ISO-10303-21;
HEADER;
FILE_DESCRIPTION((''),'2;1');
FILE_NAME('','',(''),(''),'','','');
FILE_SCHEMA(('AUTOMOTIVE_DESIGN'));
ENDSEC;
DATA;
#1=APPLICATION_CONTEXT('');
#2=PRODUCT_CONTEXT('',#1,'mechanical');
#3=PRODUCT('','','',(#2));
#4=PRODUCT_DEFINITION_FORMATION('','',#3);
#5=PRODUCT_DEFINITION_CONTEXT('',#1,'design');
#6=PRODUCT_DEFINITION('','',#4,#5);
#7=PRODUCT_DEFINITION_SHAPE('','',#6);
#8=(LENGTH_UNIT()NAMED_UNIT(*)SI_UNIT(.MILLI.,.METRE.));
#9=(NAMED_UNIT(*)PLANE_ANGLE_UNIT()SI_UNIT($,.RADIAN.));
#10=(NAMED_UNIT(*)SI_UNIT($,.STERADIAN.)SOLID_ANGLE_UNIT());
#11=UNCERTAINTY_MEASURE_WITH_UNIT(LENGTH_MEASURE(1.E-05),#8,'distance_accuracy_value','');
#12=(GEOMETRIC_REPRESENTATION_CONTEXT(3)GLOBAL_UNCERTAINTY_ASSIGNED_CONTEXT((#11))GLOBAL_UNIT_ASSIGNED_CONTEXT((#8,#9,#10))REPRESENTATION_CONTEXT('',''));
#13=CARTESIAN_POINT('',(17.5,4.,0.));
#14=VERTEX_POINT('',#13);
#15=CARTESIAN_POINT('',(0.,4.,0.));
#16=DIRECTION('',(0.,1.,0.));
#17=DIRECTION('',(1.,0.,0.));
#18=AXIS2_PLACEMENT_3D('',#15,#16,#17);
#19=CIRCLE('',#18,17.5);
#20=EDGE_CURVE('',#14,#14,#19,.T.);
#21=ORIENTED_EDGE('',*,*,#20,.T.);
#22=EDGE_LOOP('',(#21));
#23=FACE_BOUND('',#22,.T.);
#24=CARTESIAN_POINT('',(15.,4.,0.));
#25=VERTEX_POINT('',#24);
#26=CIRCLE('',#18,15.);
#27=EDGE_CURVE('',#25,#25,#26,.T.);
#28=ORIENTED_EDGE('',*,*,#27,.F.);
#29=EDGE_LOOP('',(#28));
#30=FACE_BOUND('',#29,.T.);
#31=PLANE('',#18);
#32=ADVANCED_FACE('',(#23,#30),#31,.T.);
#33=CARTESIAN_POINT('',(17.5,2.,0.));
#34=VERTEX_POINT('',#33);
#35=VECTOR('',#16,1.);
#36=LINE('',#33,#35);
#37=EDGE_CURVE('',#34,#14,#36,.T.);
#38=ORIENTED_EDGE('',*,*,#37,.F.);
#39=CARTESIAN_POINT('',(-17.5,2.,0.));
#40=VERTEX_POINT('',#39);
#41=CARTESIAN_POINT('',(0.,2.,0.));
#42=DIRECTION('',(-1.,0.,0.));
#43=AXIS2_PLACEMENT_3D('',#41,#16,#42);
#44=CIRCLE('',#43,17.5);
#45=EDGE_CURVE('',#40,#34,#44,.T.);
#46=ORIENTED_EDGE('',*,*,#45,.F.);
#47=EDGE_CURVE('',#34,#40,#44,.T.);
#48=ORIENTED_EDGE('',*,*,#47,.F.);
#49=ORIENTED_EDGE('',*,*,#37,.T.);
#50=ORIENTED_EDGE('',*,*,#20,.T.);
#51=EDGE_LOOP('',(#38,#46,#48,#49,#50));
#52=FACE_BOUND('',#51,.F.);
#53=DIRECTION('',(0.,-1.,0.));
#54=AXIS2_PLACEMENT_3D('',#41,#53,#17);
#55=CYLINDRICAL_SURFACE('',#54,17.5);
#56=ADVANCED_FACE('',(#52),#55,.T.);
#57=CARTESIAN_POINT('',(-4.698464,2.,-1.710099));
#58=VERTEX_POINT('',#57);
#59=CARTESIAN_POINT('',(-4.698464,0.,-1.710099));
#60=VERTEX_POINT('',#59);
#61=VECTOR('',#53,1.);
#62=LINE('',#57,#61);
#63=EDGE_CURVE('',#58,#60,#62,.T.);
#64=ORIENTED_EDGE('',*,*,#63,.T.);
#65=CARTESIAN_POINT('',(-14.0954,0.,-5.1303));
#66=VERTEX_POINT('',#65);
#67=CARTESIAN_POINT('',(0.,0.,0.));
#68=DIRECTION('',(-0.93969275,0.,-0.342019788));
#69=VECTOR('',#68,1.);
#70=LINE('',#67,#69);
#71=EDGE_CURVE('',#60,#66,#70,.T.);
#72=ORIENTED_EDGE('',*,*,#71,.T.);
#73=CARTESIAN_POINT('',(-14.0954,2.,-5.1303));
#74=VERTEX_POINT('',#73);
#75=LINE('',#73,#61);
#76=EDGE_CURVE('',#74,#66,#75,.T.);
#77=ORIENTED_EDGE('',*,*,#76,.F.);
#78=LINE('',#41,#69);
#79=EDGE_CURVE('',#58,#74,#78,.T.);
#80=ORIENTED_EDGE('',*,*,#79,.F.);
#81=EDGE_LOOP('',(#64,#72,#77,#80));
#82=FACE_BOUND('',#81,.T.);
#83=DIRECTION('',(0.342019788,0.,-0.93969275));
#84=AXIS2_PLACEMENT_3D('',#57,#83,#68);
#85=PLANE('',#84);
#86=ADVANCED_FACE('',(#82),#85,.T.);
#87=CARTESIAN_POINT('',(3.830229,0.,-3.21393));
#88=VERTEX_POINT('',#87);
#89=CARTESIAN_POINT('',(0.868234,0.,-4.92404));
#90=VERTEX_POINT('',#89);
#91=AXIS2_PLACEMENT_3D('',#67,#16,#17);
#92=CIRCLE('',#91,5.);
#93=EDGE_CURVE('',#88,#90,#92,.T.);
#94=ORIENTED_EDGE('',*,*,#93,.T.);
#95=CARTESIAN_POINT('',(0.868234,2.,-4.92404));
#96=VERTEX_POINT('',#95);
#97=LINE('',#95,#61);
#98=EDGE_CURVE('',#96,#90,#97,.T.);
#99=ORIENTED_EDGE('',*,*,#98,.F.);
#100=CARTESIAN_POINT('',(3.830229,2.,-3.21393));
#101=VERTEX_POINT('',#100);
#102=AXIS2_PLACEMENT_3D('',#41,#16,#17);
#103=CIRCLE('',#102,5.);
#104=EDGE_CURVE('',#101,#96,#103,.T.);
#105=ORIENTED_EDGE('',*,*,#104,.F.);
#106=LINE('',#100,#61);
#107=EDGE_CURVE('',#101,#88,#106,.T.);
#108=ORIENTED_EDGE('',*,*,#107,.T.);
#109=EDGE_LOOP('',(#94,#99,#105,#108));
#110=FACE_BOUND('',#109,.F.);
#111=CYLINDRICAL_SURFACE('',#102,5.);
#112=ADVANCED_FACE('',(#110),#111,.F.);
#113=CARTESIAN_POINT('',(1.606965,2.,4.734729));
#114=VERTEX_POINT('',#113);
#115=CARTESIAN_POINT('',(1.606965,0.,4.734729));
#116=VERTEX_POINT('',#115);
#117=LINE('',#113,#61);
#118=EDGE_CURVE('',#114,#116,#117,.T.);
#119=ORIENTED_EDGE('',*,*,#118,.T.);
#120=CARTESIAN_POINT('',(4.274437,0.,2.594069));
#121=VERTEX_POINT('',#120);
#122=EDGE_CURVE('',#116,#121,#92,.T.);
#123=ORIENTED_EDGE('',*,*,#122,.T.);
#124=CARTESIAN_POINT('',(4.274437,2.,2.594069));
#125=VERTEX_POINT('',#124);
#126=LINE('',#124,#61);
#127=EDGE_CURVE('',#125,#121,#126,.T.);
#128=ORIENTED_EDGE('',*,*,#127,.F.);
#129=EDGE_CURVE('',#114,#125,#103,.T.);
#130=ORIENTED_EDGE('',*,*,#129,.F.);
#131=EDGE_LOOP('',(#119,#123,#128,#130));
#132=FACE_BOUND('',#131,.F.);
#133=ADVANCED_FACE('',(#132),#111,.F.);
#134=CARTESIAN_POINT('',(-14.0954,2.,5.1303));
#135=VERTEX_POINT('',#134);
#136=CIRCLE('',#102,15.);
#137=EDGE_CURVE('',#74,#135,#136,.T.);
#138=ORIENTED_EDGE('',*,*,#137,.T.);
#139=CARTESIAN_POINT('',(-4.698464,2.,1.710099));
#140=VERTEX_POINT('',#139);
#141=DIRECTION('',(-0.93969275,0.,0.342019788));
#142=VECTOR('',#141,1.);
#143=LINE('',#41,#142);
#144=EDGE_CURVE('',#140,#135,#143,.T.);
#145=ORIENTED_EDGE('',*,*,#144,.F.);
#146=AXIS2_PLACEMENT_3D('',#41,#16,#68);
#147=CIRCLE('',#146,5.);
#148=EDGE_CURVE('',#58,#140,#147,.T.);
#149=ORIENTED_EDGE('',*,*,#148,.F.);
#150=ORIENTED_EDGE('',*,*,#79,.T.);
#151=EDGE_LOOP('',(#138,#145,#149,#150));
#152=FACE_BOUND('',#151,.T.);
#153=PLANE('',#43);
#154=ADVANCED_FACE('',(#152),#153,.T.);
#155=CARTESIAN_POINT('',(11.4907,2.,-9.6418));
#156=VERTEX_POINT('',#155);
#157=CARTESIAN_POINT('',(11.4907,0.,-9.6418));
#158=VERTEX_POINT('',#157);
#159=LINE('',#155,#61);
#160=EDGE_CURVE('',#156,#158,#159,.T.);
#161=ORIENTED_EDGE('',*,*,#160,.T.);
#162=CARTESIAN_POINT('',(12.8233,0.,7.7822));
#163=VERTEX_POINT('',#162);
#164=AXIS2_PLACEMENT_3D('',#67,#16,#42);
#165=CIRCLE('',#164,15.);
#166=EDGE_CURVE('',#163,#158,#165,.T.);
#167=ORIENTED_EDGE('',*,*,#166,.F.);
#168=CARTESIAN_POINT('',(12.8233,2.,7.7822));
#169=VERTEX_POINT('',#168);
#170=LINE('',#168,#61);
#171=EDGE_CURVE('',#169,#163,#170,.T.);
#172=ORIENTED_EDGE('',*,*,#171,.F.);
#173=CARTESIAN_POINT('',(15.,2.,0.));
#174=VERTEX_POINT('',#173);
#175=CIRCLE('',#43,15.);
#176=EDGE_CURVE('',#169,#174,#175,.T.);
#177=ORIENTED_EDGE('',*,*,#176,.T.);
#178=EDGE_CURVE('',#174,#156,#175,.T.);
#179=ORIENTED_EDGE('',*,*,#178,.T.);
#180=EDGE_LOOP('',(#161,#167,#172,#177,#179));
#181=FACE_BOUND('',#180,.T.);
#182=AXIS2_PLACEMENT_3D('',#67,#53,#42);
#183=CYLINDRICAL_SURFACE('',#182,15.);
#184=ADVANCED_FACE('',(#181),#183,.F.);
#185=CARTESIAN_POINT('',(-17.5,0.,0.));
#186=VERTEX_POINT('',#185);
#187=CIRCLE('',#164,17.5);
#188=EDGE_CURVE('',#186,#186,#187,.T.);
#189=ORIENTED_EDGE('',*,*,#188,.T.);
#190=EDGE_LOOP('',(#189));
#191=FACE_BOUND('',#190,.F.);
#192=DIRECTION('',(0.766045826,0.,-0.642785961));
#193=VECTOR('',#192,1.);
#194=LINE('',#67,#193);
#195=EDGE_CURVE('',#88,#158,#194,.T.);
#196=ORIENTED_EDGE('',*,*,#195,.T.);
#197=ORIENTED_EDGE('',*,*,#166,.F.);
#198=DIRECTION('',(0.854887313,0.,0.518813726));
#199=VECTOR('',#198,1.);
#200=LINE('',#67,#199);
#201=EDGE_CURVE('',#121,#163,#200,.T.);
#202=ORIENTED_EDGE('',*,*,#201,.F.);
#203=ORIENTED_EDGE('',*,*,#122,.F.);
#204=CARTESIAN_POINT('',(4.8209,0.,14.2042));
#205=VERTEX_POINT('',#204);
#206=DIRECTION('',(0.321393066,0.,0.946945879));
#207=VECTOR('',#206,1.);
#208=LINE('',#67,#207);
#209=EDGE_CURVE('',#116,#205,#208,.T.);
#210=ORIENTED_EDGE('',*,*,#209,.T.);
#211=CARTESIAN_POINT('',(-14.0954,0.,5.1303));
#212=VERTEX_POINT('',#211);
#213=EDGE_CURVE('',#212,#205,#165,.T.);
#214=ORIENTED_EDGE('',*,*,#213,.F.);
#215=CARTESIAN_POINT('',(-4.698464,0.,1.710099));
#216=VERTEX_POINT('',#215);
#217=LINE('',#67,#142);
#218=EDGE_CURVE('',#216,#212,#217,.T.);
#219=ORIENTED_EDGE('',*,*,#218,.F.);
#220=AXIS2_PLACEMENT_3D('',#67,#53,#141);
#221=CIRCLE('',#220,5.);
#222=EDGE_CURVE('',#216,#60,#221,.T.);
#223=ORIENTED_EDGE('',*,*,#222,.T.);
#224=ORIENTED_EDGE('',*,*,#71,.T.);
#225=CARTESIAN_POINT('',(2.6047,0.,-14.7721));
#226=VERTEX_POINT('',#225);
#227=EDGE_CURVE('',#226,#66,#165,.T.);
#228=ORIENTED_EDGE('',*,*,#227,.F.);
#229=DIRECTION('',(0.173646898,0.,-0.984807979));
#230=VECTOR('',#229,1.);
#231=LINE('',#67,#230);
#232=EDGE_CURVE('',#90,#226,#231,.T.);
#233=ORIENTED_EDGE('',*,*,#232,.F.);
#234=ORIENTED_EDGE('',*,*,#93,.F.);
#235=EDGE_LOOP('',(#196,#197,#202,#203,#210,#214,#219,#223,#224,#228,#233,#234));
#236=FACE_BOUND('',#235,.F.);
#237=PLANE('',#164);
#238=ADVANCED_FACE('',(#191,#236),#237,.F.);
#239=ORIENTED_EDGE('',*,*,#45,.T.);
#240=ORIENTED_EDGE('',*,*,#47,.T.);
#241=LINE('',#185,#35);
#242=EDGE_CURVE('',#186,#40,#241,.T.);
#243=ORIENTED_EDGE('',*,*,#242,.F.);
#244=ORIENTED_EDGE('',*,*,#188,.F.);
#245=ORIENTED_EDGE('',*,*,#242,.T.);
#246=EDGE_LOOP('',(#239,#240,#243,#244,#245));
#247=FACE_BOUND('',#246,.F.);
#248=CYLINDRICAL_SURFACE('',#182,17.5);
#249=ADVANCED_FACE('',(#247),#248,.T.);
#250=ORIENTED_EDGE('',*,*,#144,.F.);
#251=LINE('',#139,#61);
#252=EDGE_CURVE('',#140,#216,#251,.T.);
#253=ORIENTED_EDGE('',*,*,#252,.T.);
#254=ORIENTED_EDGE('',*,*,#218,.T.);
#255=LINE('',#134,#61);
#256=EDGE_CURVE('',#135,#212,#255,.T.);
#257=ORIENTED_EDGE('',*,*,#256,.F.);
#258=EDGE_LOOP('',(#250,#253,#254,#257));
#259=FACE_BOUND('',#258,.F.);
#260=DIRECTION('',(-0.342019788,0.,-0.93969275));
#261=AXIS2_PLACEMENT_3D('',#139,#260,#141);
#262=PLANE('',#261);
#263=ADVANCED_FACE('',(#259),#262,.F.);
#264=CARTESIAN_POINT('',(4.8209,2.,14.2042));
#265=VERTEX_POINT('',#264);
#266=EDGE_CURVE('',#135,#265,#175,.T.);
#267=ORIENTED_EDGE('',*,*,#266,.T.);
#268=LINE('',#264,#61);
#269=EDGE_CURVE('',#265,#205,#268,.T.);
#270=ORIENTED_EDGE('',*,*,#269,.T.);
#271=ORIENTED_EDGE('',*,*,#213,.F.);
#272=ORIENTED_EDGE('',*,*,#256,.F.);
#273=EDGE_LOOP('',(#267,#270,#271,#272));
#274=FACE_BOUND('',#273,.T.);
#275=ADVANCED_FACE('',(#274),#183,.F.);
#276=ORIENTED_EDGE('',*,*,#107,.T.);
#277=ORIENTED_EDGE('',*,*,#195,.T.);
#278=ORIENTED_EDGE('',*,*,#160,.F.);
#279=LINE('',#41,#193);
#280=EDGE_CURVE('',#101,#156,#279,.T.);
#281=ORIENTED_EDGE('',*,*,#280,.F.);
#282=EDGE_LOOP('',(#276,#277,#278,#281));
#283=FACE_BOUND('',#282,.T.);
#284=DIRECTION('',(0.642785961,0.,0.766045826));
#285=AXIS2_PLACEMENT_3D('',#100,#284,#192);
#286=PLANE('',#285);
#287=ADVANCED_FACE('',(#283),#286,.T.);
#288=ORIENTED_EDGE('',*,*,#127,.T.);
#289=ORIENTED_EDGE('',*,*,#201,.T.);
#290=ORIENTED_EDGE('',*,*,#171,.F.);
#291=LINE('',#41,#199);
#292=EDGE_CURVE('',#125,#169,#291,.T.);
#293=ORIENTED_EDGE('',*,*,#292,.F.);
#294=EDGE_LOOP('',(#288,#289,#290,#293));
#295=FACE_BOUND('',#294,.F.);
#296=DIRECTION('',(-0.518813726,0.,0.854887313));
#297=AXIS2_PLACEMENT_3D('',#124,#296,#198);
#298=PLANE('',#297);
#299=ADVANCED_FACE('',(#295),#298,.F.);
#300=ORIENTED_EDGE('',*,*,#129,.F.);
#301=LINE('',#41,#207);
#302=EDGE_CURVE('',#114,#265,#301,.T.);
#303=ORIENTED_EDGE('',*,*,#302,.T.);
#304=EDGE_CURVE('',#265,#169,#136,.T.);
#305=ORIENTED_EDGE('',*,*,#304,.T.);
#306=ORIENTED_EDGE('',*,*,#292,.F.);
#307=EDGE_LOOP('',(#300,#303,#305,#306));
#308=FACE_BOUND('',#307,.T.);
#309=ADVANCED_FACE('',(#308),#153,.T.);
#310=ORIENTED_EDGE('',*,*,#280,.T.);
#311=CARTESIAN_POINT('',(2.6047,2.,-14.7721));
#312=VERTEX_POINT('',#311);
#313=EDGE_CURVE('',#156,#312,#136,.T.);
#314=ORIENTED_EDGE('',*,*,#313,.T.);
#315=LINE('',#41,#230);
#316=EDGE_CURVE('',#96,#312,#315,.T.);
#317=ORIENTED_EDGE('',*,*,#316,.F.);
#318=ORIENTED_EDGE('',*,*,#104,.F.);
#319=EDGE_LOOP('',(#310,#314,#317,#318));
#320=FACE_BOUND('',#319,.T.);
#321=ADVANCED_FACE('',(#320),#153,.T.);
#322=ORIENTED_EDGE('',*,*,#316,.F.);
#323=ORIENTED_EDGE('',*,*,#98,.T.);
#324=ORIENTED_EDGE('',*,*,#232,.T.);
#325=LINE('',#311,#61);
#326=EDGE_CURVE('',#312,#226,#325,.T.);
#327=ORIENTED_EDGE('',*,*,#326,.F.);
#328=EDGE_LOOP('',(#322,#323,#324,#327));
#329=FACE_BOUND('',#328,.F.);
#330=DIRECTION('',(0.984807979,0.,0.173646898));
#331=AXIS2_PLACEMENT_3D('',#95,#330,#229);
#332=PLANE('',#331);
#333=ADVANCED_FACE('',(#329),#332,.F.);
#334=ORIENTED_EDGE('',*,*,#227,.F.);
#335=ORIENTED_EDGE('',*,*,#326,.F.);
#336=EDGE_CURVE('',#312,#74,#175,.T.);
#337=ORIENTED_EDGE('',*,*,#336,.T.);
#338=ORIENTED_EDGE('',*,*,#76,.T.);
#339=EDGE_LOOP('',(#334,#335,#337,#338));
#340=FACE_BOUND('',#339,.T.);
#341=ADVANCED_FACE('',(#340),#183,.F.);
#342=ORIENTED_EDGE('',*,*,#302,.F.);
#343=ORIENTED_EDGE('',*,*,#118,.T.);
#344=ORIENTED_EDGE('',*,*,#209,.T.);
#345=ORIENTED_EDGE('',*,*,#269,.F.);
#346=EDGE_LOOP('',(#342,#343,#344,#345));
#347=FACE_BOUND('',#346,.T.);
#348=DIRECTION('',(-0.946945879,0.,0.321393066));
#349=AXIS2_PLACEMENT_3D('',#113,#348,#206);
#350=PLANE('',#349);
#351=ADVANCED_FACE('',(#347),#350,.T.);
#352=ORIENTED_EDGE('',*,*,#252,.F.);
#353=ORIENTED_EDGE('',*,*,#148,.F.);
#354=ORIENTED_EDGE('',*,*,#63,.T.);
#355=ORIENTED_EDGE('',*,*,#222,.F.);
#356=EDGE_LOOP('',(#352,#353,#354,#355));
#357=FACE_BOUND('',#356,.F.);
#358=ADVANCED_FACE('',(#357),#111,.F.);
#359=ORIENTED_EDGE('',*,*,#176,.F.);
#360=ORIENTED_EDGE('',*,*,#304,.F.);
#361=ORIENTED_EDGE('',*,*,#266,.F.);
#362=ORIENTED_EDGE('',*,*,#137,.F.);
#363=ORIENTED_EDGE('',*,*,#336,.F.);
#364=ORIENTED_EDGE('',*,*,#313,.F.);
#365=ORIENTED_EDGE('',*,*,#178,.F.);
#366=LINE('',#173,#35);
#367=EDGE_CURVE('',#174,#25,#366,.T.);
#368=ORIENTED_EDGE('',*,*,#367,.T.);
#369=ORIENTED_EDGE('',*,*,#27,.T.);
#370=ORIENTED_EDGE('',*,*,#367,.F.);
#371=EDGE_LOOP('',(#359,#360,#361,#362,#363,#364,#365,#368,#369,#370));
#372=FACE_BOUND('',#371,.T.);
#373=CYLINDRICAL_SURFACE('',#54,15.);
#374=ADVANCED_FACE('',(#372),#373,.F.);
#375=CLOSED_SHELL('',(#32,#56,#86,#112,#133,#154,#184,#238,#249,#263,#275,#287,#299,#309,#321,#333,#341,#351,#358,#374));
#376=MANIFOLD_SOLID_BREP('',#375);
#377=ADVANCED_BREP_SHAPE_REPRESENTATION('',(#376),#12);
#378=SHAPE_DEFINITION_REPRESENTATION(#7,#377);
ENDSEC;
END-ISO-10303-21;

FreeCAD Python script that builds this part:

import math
import FreeCAD as App
import Part
import Sketcher
from FreeCAD import Vector
Q = App.Units.Quantity

doc = App.newDocument("Part")
params = doc.addObject("Spreadsheet::Sheet", "Params")
for row, (alias, value) in enumerate([
    ("sketch1_diameter", "35 mm"),
    ("sketch1_diameter2", "30 mm"),
    ("pad1_length", "2 mm"),
    ("sketch2_radius", "5 mm"),
    ("sketch2_length", "10 mm"),
    ("pad2_length", "2 mm"),
    ("sketch3_diameter", "30 mm"),
    ("sketch3_diameter2", "35 mm"),
    ("pad3_length", "2 mm"),
], start=1):
    params.set(f"A{row}", alias)
    params.set(f"B{row}", "=" + value)
    params.setAlias(f"B{row}", alias)

body = doc.addObject("PartDesign::Body", "Body")

# Sketch on XZ plane
sketch1 = body.newObject("Sketcher::SketchObject", "Sketch")
sketch1.AttachmentSupport = (doc.getObject("XZ_Plane"), [""])
sketch1.MapMode = "FlatFace"
sketch1.addGeometry([
    Part.Circle(Vector(0, 0, 0), Vector(0, 0, 1), 17.5),
    Part.Circle(Vector(0, 0, 0), Vector(0, 0, 1), 15),
], False)
sketch1.addConstraint([
    Sketcher.Constraint("Coincident", 0, 3, -1, 1),
    Sketcher.Constraint("Coincident", 1, 3, -1, 1),
    Sketcher.Constraint("Diameter", 0, Q("35 mm")),
    Sketcher.Constraint("Diameter", 1, Q("30 mm")),
])
sketch1.setExpression("Constraints[2]", "Params.sketch1_diameter")
sketch1.setExpression("Constraints[3]", "Params.sketch1_diameter2")
pad1 = body.newObject("PartDesign::Pad", "Pad")
pad1.Profile = sketch1
pad1.setExpression("Length", "Params.pad1_length")
pad1.Reversed = True

# Sketch on XZ plane
sketch2 = body.newObject("Sketcher::SketchObject", "Sketch001")
sketch2.AttachmentSupport = (doc.getObject("XZ_Plane"), [""])
sketch2.MapMode = "FlatFace"
sketch2.AttachmentOffset = App.Placement(Vector(0, 0, -2), App.Rotation())
sketch2.addGeometry([
    Part.ArcOfCircle(Part.Circle(Vector(0, 0, 0), Vector(0, 0, 1), 5), math.radians(160.000022), math.radians(199.999978)),  # 0
    Part.LineSegment(Vector(-4.698464, -1.710099, 0), Vector(-14.0954, -5.1303, 0)),  # 1
    Part.ArcOfCircle(Part.Circle(Vector(0, 0, 0), Vector(0, 0, 1), 15), math.radians(160.000022), math.radians(199.999978)),  # 2
    Part.LineSegment(Vector(-14.0954, 5.1303, 0), Vector(-4.698464, 1.710099, 0)),  # 3
    Part.ArcOfCircle(Part.Circle(Vector(0, 0, 0), Vector(0, 0, 1), 5), math.radians(-80.000074), math.radians(-39.999877)),  # 4
    Part.LineSegment(Vector(3.830229, -3.21393, 0), Vector(11.4907, -9.6418, 0)),  # 5
    Part.ArcOfCircle(Part.Circle(Vector(0, 0, 0), Vector(0, 0, 1), 15), math.radians(-80.000074), math.radians(-39.999877)),  # 6
    Part.LineSegment(Vector(2.6047, -14.7721, 0), Vector(0.868234, -4.92404, 0)),  # 7
    Part.LineSegment(Vector(12.8233, 7.7822, 0), Vector(4.274437, 2.594069, 0)),  # 8
    Part.ArcOfCircle(Part.Circle(Vector(0, 0, 0), Vector(0, 0, 1), 5), math.radians(31.252712), math.radians(71.252807)),  # 9
    Part.LineSegment(Vector(1.606965, 4.734729, 0), Vector(4.8209, 14.2042, 0)),  # 10
    Part.ArcOfCircle(Part.Circle(Vector(0, 0, 0), Vector(0, 0, 1), 15), math.radians(31.252712), math.radians(71.252807)),  # 11
], False)
sketch2.addConstraint([
    Sketcher.Constraint("Coincident", 0, 2, 1, 1),
    Sketcher.Constraint("Coincident", 1, 2, 2, 2),
    Sketcher.Constraint("Coincident", 2, 1, 3, 1),
    Sketcher.Constraint("Coincident", 3, 2, 0, 1),
    Sketcher.Constraint("Coincident", 4, 2, 5, 1),
    Sketcher.Constraint("Coincident", 5, 2, 6, 2),
    Sketcher.Constraint("Coincident", 6, 1, 7, 1),
    Sketcher.Constraint("Coincident", 7, 2, 4, 1),
    Sketcher.Constraint("Coincident", 8, 2, 9, 1),
    Sketcher.Constraint("Coincident", 9, 2, 10, 1),
    Sketcher.Constraint("Coincident", 10, 2, 11, 2),
    Sketcher.Constraint("Coincident", 11, 1, 8, 1),
    Sketcher.Constraint("Coincident", 0, 3, -1, 1),
    Sketcher.Constraint("Coincident", 2, 3, -1, 1),
    Sketcher.Constraint("Coincident", 4, 3, -1, 1),
    Sketcher.Constraint("Coincident", 6, 3, -1, 1),
    Sketcher.Constraint("Coincident", 9, 3, -1, 1),
    Sketcher.Constraint("Coincident", 11, 3, -1, 1),
    Sketcher.Constraint("Equal", 0, 4),
    Sketcher.Constraint("Equal", 2, 6),
    Sketcher.Constraint("Equal", 4, 9),
    Sketcher.Constraint("Equal", 6, 11),
    Sketcher.Constraint("Vertical", 1, 2, 2, 1),
    Sketcher.Constraint("Vertical", 0, 2, 3, 2),
    Sketcher.Constraint("Radius", 0, Q("5 mm")),
    Sketcher.Constraint("Distance", 1, Q("10 mm")),
    Sketcher.Constraint("Angle", 1, Q("-160 deg")),
    Sketcher.Constraint("Angle", 5, Q("-39.9999 deg")),
    Sketcher.Constraint("Angle", 7, Q("100 deg")),
    Sketcher.Constraint("DistanceY", 0, 2, -1, 1, Q("1.71 mm")),
    Sketcher.Constraint("DistanceY", 7, 2, 4, 2, Q("1.71 mm")),
    Sketcher.Constraint("DistanceY", 4, 2, -1, 1, Q("3.214 mm")),
    Sketcher.Constraint("DistanceY", -1, 1, 8, 2, Q("2.594 mm")),
    Sketcher.Constraint("DistanceX", -1, 1, 9, 2, Q("1.607 mm")),
    Sketcher.Constraint("DistanceX", -1, 1, 10, 2, Q("4.821 mm")),
    Sketcher.Constraint("DistanceY", 11, 1, 10, 2, Q("6.422 mm")),
])
sketch2.setExpression("Constraints[24]", "Params.sketch2_radius")
sketch2.setExpression("Constraints[25]", "Params.sketch2_length")
pad2 = body.newObject("PartDesign::Pad", "Pad001")
pad2.Profile = sketch2
pad2.setExpression("Length", "Params.pad2_length")

# Sketch on XZ plane
sketch3 = body.newObject("Sketcher::SketchObject", "Sketch002")
sketch3.AttachmentSupport = (doc.getObject("XZ_Plane"), [""])
sketch3.MapMode = "FlatFace"
sketch3.AttachmentOffset = App.Placement(Vector(0, 0, -2), App.Rotation())
sketch3.addGeometry([
    Part.Circle(Vector(0, 0, 0), Vector(0, 0, 1), 17.5),
    Part.Circle(Vector(0, 0, 0), Vector(0, 0, 1), 15),
], False)
sketch3.addConstraint([
    Sketcher.Constraint("Coincident", 0, 3, -1, 1),
    Sketcher.Constraint("Coincident", 1, 3, -1, 1),
    Sketcher.Constraint("Diameter", 1, Q("30 mm")),
    Sketcher.Constraint("Diameter", 0, Q("35 mm")),
])
sketch3.setExpression("Constraints[2]", "Params.sketch3_diameter")
sketch3.setExpression("Constraints[3]", "Params.sketch3_diameter2")
pad3 = body.newObject("PartDesign::Pad", "Pad002")
pad3.Profile = sketch3
pad3.setExpression("Length", "Params.pad3_length")
pad3.Reversed = True

doc.recompute()
